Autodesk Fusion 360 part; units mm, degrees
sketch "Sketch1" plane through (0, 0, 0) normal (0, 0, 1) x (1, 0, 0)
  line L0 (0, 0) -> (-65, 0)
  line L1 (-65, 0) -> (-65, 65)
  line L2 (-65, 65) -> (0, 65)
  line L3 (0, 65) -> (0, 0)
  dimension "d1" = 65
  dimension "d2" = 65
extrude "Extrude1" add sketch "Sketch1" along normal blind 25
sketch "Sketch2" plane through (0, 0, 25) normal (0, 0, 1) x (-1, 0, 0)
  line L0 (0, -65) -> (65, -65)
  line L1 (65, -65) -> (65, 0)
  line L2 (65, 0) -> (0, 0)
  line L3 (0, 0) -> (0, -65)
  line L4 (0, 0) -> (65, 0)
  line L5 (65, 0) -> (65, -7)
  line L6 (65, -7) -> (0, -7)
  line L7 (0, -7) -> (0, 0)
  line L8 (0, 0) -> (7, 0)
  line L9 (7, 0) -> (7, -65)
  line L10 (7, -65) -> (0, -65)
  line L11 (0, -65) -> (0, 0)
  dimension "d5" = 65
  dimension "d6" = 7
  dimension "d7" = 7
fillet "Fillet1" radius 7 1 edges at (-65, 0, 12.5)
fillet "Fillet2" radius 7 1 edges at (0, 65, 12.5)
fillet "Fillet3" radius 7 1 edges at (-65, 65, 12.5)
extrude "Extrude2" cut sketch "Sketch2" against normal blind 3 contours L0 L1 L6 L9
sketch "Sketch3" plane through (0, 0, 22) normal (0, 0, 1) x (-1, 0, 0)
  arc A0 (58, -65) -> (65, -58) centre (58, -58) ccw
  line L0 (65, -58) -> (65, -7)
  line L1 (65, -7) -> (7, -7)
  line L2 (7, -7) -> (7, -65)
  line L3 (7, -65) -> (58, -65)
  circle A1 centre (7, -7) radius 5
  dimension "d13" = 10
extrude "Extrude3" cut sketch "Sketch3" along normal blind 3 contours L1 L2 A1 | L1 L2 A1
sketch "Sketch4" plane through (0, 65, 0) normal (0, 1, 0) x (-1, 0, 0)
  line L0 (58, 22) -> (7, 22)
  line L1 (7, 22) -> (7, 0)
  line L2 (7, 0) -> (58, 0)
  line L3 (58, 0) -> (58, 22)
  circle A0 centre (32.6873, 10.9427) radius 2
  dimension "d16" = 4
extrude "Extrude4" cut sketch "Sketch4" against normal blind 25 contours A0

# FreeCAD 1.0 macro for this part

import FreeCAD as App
import Part
import Sketcher


def edges_at(feature, points):
    """Names of the edges that pass closest to the given points."""
    edges = feature.Shape.Edges
    near = lambda p: min(range(len(edges)), key=lambda i: edges[i].distToShape(Part.Vertex(*p))[0])
    return sorted({f"Edge{near(p) + 1}" for p in points})


def add_polygon(sketch, points):
    """Adds a closed chain of lines whose ends are joined by coincident constraints."""
    first, n = sketch.GeometryCount, len(points)
    for a, b in zip(points, points[1:] + points[:1]):
        sketch.addGeometry(Part.LineSegment(App.Vector(*a, 0), App.Vector(*b, 0)), False)
    for i in range(n):
        sketch.addConstraint(Sketcher.Constraint("Coincident", first + i, 2, first + (i + 1) % n, 1))

doc = App.newDocument("Part")
body = doc.addObject("PartDesign::Body", "Body")

# Sketch on XY plane
sketch1 = body.newObject("Sketcher::SketchObject", "Sketch")
sketch1.AttachmentSupport = (doc.getObject("XY_Plane"), [""])
sketch1.MapMode = "FlatFace"
add_polygon(sketch1, [(-65, 0), (0, 0), (0, 65), (-65, 65)])  # lines 0-3
sketch1.addConstraint([
    Sketcher.Constraint("Horizontal", 0),
    Sketcher.Constraint("Vertical", 1),
    Sketcher.Constraint("Horizontal", 2),
    Sketcher.Constraint("Vertical", 3),
    Sketcher.Constraint("Coincident", 0, 2, -1, 1),
    Sketcher.Constraint("Equal", 2, 1),
    Sketcher.Constraint("DistanceX", 0, 1, 0, 2, 65.0),
])
pad1 = body.newObject("PartDesign::Pad", "Pad")
pad1.Profile = sketch1
pad1.Length = 25
doc.recompute()

fillet = body.newObject("PartDesign::Fillet", "Fillet")
fillet.Base = (pad1, edges_at(pad1, [(-65, 0, 12.5)]))
fillet.Radius = 7
doc.recompute()

fillet2 = body.newObject("PartDesign::Fillet", "Fillet001")
fillet2.Base = (fillet, edges_at(fillet, [(0, 65, 12.5)]))
fillet2.Radius = 7
doc.recompute()

fillet3 = body.newObject("PartDesign::Fillet", "Fillet002")
fillet3.Base = (fillet2, edges_at(fillet2, [(-65, 65, 12.5)]))
fillet3.Radius = 7

# Sketch on XY plane
sketch2 = body.newObject("Sketcher::SketchObject", "Sketch001")
sketch2.AttachmentSupport = (doc.getObject("XY_Plane"), [""])
sketch2.MapMode = "FlatFace"
sketch2.AttachmentOffset = App.Placement(App.Vector(0, 0, 25), App.Rotation())
add_polygon(sketch2, [(-7, 7), (-7, 65), (-65, 65), (-65, 7)])  # lines 0-3
sketch2.addConstraint([
    Sketcher.Constraint("Vertical", 0),
    Sketcher.Constraint("Horizontal", 1),
    Sketcher.Constraint("Vertical", 2),
    Sketcher.Constraint("Horizontal", 3),
    Sketcher.Constraint("Equal", 3, 0),
    Sketcher.Constraint("DistanceX", 0, 2, -1, 1, 7.0),
    Sketcher.Constraint("DistanceY", -1, 1, 0, 2, 65.0),
    Sketcher.Constraint("DistanceX", 1, 2, -1, 1, 65.0),
])
pocket1 = body.newObject("PartDesign::Pocket", "Pocket")
pocket1.Profile = sketch2
pocket1.Length = 3

# Sketch on XY plane
sketch3 = body.newObject("Sketcher::SketchObject", "Sketch002")
sketch3.AttachmentSupport = (doc.getObject("XY_Plane"), [""])
sketch3.MapMode = "FlatFace"
sketch3.AttachmentOffset = App.Placement(App.Vector(0, 0, 22), App.Rotation())
sketch3.addGeometry(Part.Circle(App.Vector(-7, 7, 0), App.Vector(0, 0, 1), 5), False)
sketch3.addConstraint([
    Sketcher.Constraint("Diameter", 0, 10.0),
    Sketcher.Constraint("DistanceX", 0, 3, -1, 1, 7.0),
    Sketcher.Constraint("DistanceY", -1, 1, 0, 3, 7.0),
])
pocket2 = body.newObject("PartDesign::Pocket", "Pocket001")
pocket2.Profile = sketch3
pocket2.Length = 3
pocket2.Reversed = True

# Sketch on XZ plane
sketch4 = body.newObject("Sketcher::SketchObject", "Sketch003")
sketch4.AttachmentSupport = (doc.getObject("XZ_Plane"), [""])
sketch4.MapMode = "FlatFace"
sketch4.AttachmentOffset = App.Placement(App.Vector(0, 0, -65), App.Rotation())
sketch4.addGeometry(Part.Circle(App.Vector(-32.7, 10.9, 0), App.Vector(0, 0, 1), 2), False)
sketch4.addConstraint([
    Sketcher.Constraint("Diameter", 0, 4.0),
    Sketcher.Constraint("DistanceX", 0, 3, -1, 1, 32.6873),
    Sketcher.Constraint("DistanceY", -1, 1, 0, 3, 10.9427),
])
pocket3 = body.newObject("PartDesign::Pocket", "Pocket002")
pocket3.Profile = sketch4
pocket3.Length = 25
pocket3.Reversed = True

doc.recompute()
